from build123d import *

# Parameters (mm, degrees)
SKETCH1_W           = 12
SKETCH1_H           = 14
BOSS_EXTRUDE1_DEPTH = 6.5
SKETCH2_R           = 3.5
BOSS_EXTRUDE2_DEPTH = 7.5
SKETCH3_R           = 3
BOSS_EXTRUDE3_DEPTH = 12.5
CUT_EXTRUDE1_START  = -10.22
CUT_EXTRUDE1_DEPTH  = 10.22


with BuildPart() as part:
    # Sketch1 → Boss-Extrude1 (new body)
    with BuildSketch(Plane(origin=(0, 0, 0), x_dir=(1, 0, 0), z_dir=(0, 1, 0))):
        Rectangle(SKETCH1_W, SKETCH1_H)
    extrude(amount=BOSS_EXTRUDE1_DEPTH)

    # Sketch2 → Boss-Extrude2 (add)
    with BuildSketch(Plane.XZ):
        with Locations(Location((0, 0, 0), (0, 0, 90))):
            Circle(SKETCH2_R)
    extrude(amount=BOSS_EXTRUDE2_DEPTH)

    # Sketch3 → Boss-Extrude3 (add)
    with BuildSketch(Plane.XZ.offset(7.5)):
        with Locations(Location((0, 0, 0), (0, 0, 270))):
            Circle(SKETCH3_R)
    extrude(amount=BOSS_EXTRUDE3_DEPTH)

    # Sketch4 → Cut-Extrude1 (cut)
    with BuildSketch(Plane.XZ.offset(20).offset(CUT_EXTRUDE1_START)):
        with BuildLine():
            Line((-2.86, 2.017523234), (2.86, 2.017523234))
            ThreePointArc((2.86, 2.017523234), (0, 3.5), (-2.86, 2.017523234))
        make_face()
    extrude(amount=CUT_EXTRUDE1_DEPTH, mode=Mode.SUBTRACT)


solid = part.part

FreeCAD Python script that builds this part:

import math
import FreeCAD as App
import Part
import Sketcher

V = App.Vector
Q = App.Units.Quantity

doc = App.newDocument("Part")
body = doc.addObject("PartDesign::Body", "Body")

# Sketch on XZ plane
sketch1 = doc.addObject("Sketcher::SketchObject", "Sketch")
body.addObject(sketch1)
sketch1.AttachmentSupport = (doc.XZ_Plane, [""])
sketch1.MapMode = "FlatFace"
sketch1.addGeometry([
    Part.LineSegment(V(-6, -7, 0), V(-6, 7, 0)),
    Part.LineSegment(V(-6, 7, 0), V(6, 7, 0)),
    Part.LineSegment(V(6, 7, 0), V(6, -7, 0)),
    Part.LineSegment(V(6, -7, 0), V(-6, -7, 0)),
], False)
sketch1.addConstraint([
    Sketcher.Constraint("Coincident", 0, 2, 1, 1),
    Sketcher.Constraint("Coincident", 1, 2, 2, 1),
    Sketcher.Constraint("Coincident", 2, 2, 3, 1),
    Sketcher.Constraint("Coincident", 3, 2, 0, 1),
    Sketcher.Constraint("Vertical", 0),
    Sketcher.Constraint("Horizontal", 1),
    Sketcher.Constraint("Vertical", 2),
    Sketcher.Constraint("Horizontal", 3),
    Sketcher.Constraint("Symmetric", 0, 2, 2, 2, -1, 1),
    Sketcher.Constraint("DistanceX", 1, 1, 1, 2, Q("12 mm")),
    Sketcher.Constraint("DistanceY", 0, 1, 0, 2, Q("14 mm")),
])
pad1 = doc.addObject("PartDesign::Pad", "Pad")
body.addObject(pad1)
pad1.Profile = sketch1
pad1.Length = 6.5
pad1.Reversed = True

# Sketch on XZ plane
sketch2 = doc.addObject("Sketcher::SketchObject", "Sketch001")
body.addObject(sketch2)
sketch2.AttachmentSupport = (doc.XZ_Plane, [""])
sketch2.MapMode = "FlatFace"
sketch2.addGeometry(Part.Circle(V(0, 0, 0), V(0, 0, 1), 3.5), False)
sketch2.addConstraint([
    Sketcher.Constraint("Coincident", 0, 3, -1, 1),
    Sketcher.Constraint("Diameter", 0, Q("7 mm")),
])
pad2 = doc.addObject("PartDesign::Pad", "Pad001")
body.addObject(pad2)
pad2.Profile = sketch2
pad2.Length = 7.5

# Sketch on XZ plane
sketch3 = doc.addObject("Sketcher::SketchObject", "Sketch002")
body.addObject(sketch3)
sketch3.AttachmentSupport = (doc.XZ_Plane, [""])
sketch3.MapMode = "FlatFace"
sketch3.AttachmentOffset = App.Placement(V(0, 0, 7.5), App.Rotation())
sketch3.addGeometry(Part.Circle(V(0, 0, 0), V(0, 0, 1), 3), False)
sketch3.addConstraint([
    Sketcher.Constraint("Coincident", 0, 3, -1, 1),
    Sketcher.Constraint("Diameter", 0, Q("6 mm")),
])
pad3 = doc.addObject("PartDesign::Pad", "Pad002")
body.addObject(pad3)
pad3.Profile = sketch3
pad3.Length = 12.5

# Sketch on XZ plane
sketch4 = doc.addObject("Sketcher::SketchObject", "Sketch003")
body.addObject(sketch4)
sketch4.AttachmentSupport = (doc.XZ_Plane, [""])
sketch4.MapMode = "FlatFace"
sketch4.AttachmentOffset = App.Placement(V(0, 0, 9.78), App.Rotation())
sketch4.addGeometry([
    Part.LineSegment(V(-2.9, 2, 0), V(2.9, 2, 0)),
    Part.ArcOfCircle(Part.Circle(V(0, 0, 0), V(0, 0, 1), 3.5), math.radians(35), math.radians(145)),
], False)
sketch4.addConstraint([
    Sketcher.Constraint("Coincident", 0, 1, 1, 2),
    Sketcher.Constraint("Coincident", 1, 1, 0, 2),
    Sketcher.Constraint("Horizontal", 0),
    Sketcher.Constraint("Coincident", 1, 3, -1, 1),
    Sketcher.Constraint("Radius", 1, Q("3.5 mm")),
    Sketcher.Constraint("DistanceX", 0, 1, 0, 2, Q("5.72 mm")),
])
pocket1 = doc.addObject("PartDesign::Pocket", "Pocket")
body.addObject(pocket1)
pocket1.Profile = sketch4
pocket1.Length = 10.22
pocket1.Reversed = True

doc.recompute()
